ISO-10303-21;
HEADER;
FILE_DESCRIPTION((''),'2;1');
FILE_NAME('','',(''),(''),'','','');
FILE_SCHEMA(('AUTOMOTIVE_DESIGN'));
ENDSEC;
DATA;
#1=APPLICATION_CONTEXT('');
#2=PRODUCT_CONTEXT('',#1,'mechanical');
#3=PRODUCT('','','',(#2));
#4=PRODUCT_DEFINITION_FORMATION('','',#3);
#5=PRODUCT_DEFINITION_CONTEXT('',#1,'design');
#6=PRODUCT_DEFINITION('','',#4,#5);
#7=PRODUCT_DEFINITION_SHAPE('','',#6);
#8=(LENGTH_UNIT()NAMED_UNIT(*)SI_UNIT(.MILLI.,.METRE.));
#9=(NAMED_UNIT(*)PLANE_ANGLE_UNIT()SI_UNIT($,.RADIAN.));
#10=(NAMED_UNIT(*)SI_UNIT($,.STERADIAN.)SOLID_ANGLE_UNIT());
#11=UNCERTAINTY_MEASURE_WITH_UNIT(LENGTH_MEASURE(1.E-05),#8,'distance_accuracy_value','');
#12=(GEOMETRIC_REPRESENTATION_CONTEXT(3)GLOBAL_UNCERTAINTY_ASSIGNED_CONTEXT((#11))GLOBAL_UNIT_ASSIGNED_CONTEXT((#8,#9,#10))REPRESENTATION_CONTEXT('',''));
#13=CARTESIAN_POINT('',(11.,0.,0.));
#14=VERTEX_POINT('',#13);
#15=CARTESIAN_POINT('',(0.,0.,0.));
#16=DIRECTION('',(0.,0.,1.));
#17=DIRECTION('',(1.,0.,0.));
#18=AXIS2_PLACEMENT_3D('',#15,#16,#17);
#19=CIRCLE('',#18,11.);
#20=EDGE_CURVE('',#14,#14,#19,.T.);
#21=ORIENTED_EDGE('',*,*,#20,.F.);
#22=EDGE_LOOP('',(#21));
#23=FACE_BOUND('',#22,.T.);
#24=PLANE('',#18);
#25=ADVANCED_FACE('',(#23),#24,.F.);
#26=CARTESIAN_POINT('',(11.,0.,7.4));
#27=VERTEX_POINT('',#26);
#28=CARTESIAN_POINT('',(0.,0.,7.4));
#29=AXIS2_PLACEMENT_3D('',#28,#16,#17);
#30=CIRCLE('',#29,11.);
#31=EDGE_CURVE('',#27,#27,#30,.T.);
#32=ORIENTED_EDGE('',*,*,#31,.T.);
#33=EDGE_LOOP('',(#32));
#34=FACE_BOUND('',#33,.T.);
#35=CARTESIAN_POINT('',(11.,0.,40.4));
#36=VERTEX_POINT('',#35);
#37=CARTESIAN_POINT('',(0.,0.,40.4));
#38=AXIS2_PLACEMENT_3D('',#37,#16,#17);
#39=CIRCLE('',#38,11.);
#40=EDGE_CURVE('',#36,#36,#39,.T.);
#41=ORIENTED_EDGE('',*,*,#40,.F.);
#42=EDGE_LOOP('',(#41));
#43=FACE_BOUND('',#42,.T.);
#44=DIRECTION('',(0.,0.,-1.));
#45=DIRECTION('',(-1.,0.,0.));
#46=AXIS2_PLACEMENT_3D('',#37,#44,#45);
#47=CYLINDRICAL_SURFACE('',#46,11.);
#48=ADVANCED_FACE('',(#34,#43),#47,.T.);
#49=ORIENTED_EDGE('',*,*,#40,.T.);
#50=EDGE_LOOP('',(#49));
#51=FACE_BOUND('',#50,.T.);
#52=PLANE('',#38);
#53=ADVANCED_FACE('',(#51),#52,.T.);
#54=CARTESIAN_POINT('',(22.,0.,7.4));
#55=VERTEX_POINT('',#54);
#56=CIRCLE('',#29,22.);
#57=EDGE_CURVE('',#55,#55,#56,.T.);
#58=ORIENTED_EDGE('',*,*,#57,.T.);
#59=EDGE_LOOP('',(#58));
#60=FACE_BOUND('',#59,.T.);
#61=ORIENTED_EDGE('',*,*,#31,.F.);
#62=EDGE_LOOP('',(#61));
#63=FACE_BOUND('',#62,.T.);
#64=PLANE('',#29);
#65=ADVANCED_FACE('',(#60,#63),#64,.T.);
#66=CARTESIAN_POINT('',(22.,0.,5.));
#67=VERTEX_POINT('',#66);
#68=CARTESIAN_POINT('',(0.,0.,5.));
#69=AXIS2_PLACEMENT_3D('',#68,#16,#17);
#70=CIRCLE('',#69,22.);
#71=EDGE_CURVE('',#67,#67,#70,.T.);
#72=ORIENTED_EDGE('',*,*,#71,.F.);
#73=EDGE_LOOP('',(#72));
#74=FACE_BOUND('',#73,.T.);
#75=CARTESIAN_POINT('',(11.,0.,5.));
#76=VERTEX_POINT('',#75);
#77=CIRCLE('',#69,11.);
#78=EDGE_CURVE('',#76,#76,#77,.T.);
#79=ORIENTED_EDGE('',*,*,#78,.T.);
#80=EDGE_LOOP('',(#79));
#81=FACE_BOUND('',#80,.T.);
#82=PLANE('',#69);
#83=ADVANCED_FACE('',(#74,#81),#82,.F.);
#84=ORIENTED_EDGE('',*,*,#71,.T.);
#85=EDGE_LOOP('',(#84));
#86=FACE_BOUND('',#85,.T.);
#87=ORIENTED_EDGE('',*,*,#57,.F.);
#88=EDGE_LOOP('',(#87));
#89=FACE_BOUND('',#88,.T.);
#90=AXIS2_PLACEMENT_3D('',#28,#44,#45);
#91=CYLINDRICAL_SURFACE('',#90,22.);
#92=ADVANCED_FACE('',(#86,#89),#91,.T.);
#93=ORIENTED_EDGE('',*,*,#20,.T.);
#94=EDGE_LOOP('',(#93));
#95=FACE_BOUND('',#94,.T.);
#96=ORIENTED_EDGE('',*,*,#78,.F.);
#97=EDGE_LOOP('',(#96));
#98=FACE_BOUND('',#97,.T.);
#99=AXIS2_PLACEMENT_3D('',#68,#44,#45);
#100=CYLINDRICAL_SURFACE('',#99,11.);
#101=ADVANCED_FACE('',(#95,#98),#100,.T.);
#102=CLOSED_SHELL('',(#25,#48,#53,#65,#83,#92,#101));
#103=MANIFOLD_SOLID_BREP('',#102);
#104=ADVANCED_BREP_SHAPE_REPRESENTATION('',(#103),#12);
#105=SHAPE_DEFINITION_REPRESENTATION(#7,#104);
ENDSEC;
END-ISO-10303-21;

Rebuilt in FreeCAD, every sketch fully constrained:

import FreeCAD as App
import Part
import Sketcher

V = App.Vector

doc = App.newDocument("Part")
body = doc.addObject("PartDesign::Body", "Body")

sketch1 = body.newObject("Sketcher::SketchObject", "Sketch")
sketch1.AttachmentSupport = (doc.getObject("XY_Plane"), [""])
sketch1.MapMode = "FlatFace"
sketch1.addGeometry(Part.Circle(V(0, 0, 0), V(0, 0, 1), 11), False)
sketch1.addConstraint([
    Sketcher.Constraint("Coincident", 0, 3, -1, 1),
    Sketcher.Constraint("Diameter", 0, 22.0),
])
pad1 = body.newObject("PartDesign::Pad", "Pad")
pad1.Profile = sketch1
pad1.Length = 5

sketch2 = body.newObject("Sketcher::SketchObject", "Sketch001")
sketch2.AttachmentSupport = (doc.getObject("XY_Plane"), [""])
sketch2.MapMode = "FlatFace"
sketch2.AttachmentOffset = App.Placement(V(0, 0, 5), App.Rotation())
sketch2.addGeometry(Part.Circle(V(0, 0, 0), V(0, 0, 1), 22), False)
sketch2.addConstraint([
    Sketcher.Constraint("Coincident", 0, 3, -1, 1),
    Sketcher.Constraint("Diameter", 0, 44.0),
])
pad2 = body.newObject("PartDesign::Pad", "Pad001")
pad2.Profile = sketch2
pad2.Length = 2.4

sketch3 = body.newObject("Sketcher::SketchObject", "Sketch002")
sketch3.AttachmentSupport = (doc.getObject("XY_Plane"), [""])
sketch3.MapMode = "FlatFace"
sketch3.AttachmentOffset = App.Placement(V(0, 0, 7.4), App.Rotation())
sketch3.addGeometry(Part.Circle(V(0, 0, 0), V(0, 0, 1), 11), False)
sketch3.addConstraint([
    Sketcher.Constraint("Coincident", 0, 3, -1, 1),
    Sketcher.Constraint("Diameter", 0, 22.0),
])
pad3 = body.newObject("PartDesign::Pad", "Pad002")
pad3.Profile = sketch3
pad3.Length = 33

doc.recompute()
